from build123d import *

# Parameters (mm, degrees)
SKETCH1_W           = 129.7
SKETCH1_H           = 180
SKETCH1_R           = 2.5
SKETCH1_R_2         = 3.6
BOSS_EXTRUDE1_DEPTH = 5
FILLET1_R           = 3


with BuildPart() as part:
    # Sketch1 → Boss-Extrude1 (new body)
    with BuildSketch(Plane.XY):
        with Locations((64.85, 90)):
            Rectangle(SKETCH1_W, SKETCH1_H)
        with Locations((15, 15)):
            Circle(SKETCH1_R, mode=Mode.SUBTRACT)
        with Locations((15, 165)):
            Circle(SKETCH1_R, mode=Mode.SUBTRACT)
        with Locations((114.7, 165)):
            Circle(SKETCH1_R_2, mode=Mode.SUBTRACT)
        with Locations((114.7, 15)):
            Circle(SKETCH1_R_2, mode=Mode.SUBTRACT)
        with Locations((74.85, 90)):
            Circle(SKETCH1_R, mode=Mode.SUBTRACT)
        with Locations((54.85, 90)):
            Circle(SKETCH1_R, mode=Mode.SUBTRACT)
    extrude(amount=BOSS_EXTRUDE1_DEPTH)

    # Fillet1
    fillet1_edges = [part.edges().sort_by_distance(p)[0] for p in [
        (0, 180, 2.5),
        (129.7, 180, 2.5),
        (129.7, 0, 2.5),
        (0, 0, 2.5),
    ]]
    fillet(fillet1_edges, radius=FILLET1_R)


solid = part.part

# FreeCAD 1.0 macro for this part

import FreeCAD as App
import Part
import Sketcher
from FreeCAD import Vector
Q = App.Units.Quantity


def edges_at(feature, points):
    """Names of the edges that pass closest to the given points."""
    edges = feature.Shape.Edges
    near = lambda p: min(range(len(edges)), key=lambda i: edges[i].distToShape(Part.Vertex(*p))[0])
    return sorted({f"Edge{near(p) + 1}" for p in points})

doc = App.newDocument("Part")
body = doc.addObject("PartDesign::Body", "Body")

sketch1 = body.newObject("Sketcher::SketchObject", "Sketch")
sketch1.AttachmentSupport = (doc.getObject("XY_Plane"), [""])
sketch1.MapMode = "FlatFace"
sketch1.addGeometry([
    Part.LineSegment(Vector(0, 180, 0), Vector(0, 0, 0)),
    Part.LineSegment(Vector(0, 0, 0), Vector(129.7, 0, 0)),
    Part.LineSegment(Vector(129.7, 0, 0), Vector(129.7, 180, 0)),
    Part.LineSegment(Vector(129.7, 180, 0), Vector(0, 180, 0)),
    Part.Circle(Vector(15, 15, 0), Vector(0, 0, 1), 2.5),
    Part.Circle(Vector(114.7, 15, 0), Vector(0, 0, 1), 3.6),
    Part.Circle(Vector(54.9, 90, 0), Vector(0, 0, 1), 2.5),
    Part.Circle(Vector(15, 165, 0), Vector(0, 0, 1), 2.5),
    Part.Circle(Vector(74.8, 90, 0), Vector(0, 0, 1), 2.5),
    Part.Circle(Vector(114.7, 165, 0), Vector(0, 0, 1), 3.6),
], False)
sketch1.addConstraint([
    Sketcher.Constraint("Coincident", 0, 2, 1, 1),
    Sketcher.Constraint("Coincident", 1, 2, 2, 1),
    Sketcher.Constraint("Coincident", 2, 2, 3, 1),
    Sketcher.Constraint("Coincident", 3, 2, 0, 1),
    Sketcher.Constraint("Vertical", 0),
    Sketcher.Constraint("Horizontal", 1),
    Sketcher.Constraint("Vertical", 2),
    Sketcher.Constraint("Horizontal", 3),
    Sketcher.Constraint("Coincident", 0, 2, -1, 1),
    Sketcher.Constraint("Equal", 4, 6),
    Sketcher.Constraint("Equal", 6, 7),
    Sketcher.Constraint("Equal", 7, 8),
    Sketcher.Constraint("Equal", 5, 9),
    Sketcher.Constraint("Horizontal", 4, 3, 5, 3),
    Sketcher.Constraint("Horizontal", 6, 3, 8, 3),
    Sketcher.Constraint("Horizontal", 7, 3, 9, 3),
    Sketcher.Constraint("Vertical", 4, 3, 7, 3),
    Sketcher.Constraint("Vertical", 5, 3, 9, 3),
    Sketcher.Constraint("Diameter", 4, Q("5 mm")),
    Sketcher.Constraint("Diameter", 5, Q("7.2 mm")),
    Sketcher.Constraint("DistanceY", 0, 2, 0, 1, Q("180 mm")),
    Sketcher.Constraint("DistanceX", 1, 1, 1, 2, Q("129.7 mm")),
    Sketcher.Constraint("DistanceX", -1, 1, 4, 3, Q("15 mm")),
    Sketcher.Constraint("DistanceY", -1, 1, 4, 3, Q("15 mm")),
    Sketcher.Constraint("DistanceY", -1, 1, 6, 3, Q("90 mm")),
    Sketcher.Constraint("DistanceY", -1, 1, 7, 3, Q("165 mm")),
    Sketcher.Constraint("DistanceX", 6, 3, 8, 3, Q("20 mm")),
    Sketcher.Constraint("DistanceX", 5, 3, 1, 2, Q("15 mm")),
    Sketcher.Constraint("DistanceX", -1, 1, 6, 3, Q("54.85 mm")),
])
pad1 = body.newObject("PartDesign::Pad", "Pad")
pad1.Profile = sketch1
pad1.Length = 5
doc.recompute()

fillet = body.newObject("PartDesign::Fillet", "Fillet")
fillet.Base = (pad1, edges_at(pad1, [
    (0, 180, 2.5),
    (129.7, 180, 2.5),
    (129.7, 0, 2.5),
    (0, 0, 2.5),
]))
fillet.Radius = 3

doc.recompute()
